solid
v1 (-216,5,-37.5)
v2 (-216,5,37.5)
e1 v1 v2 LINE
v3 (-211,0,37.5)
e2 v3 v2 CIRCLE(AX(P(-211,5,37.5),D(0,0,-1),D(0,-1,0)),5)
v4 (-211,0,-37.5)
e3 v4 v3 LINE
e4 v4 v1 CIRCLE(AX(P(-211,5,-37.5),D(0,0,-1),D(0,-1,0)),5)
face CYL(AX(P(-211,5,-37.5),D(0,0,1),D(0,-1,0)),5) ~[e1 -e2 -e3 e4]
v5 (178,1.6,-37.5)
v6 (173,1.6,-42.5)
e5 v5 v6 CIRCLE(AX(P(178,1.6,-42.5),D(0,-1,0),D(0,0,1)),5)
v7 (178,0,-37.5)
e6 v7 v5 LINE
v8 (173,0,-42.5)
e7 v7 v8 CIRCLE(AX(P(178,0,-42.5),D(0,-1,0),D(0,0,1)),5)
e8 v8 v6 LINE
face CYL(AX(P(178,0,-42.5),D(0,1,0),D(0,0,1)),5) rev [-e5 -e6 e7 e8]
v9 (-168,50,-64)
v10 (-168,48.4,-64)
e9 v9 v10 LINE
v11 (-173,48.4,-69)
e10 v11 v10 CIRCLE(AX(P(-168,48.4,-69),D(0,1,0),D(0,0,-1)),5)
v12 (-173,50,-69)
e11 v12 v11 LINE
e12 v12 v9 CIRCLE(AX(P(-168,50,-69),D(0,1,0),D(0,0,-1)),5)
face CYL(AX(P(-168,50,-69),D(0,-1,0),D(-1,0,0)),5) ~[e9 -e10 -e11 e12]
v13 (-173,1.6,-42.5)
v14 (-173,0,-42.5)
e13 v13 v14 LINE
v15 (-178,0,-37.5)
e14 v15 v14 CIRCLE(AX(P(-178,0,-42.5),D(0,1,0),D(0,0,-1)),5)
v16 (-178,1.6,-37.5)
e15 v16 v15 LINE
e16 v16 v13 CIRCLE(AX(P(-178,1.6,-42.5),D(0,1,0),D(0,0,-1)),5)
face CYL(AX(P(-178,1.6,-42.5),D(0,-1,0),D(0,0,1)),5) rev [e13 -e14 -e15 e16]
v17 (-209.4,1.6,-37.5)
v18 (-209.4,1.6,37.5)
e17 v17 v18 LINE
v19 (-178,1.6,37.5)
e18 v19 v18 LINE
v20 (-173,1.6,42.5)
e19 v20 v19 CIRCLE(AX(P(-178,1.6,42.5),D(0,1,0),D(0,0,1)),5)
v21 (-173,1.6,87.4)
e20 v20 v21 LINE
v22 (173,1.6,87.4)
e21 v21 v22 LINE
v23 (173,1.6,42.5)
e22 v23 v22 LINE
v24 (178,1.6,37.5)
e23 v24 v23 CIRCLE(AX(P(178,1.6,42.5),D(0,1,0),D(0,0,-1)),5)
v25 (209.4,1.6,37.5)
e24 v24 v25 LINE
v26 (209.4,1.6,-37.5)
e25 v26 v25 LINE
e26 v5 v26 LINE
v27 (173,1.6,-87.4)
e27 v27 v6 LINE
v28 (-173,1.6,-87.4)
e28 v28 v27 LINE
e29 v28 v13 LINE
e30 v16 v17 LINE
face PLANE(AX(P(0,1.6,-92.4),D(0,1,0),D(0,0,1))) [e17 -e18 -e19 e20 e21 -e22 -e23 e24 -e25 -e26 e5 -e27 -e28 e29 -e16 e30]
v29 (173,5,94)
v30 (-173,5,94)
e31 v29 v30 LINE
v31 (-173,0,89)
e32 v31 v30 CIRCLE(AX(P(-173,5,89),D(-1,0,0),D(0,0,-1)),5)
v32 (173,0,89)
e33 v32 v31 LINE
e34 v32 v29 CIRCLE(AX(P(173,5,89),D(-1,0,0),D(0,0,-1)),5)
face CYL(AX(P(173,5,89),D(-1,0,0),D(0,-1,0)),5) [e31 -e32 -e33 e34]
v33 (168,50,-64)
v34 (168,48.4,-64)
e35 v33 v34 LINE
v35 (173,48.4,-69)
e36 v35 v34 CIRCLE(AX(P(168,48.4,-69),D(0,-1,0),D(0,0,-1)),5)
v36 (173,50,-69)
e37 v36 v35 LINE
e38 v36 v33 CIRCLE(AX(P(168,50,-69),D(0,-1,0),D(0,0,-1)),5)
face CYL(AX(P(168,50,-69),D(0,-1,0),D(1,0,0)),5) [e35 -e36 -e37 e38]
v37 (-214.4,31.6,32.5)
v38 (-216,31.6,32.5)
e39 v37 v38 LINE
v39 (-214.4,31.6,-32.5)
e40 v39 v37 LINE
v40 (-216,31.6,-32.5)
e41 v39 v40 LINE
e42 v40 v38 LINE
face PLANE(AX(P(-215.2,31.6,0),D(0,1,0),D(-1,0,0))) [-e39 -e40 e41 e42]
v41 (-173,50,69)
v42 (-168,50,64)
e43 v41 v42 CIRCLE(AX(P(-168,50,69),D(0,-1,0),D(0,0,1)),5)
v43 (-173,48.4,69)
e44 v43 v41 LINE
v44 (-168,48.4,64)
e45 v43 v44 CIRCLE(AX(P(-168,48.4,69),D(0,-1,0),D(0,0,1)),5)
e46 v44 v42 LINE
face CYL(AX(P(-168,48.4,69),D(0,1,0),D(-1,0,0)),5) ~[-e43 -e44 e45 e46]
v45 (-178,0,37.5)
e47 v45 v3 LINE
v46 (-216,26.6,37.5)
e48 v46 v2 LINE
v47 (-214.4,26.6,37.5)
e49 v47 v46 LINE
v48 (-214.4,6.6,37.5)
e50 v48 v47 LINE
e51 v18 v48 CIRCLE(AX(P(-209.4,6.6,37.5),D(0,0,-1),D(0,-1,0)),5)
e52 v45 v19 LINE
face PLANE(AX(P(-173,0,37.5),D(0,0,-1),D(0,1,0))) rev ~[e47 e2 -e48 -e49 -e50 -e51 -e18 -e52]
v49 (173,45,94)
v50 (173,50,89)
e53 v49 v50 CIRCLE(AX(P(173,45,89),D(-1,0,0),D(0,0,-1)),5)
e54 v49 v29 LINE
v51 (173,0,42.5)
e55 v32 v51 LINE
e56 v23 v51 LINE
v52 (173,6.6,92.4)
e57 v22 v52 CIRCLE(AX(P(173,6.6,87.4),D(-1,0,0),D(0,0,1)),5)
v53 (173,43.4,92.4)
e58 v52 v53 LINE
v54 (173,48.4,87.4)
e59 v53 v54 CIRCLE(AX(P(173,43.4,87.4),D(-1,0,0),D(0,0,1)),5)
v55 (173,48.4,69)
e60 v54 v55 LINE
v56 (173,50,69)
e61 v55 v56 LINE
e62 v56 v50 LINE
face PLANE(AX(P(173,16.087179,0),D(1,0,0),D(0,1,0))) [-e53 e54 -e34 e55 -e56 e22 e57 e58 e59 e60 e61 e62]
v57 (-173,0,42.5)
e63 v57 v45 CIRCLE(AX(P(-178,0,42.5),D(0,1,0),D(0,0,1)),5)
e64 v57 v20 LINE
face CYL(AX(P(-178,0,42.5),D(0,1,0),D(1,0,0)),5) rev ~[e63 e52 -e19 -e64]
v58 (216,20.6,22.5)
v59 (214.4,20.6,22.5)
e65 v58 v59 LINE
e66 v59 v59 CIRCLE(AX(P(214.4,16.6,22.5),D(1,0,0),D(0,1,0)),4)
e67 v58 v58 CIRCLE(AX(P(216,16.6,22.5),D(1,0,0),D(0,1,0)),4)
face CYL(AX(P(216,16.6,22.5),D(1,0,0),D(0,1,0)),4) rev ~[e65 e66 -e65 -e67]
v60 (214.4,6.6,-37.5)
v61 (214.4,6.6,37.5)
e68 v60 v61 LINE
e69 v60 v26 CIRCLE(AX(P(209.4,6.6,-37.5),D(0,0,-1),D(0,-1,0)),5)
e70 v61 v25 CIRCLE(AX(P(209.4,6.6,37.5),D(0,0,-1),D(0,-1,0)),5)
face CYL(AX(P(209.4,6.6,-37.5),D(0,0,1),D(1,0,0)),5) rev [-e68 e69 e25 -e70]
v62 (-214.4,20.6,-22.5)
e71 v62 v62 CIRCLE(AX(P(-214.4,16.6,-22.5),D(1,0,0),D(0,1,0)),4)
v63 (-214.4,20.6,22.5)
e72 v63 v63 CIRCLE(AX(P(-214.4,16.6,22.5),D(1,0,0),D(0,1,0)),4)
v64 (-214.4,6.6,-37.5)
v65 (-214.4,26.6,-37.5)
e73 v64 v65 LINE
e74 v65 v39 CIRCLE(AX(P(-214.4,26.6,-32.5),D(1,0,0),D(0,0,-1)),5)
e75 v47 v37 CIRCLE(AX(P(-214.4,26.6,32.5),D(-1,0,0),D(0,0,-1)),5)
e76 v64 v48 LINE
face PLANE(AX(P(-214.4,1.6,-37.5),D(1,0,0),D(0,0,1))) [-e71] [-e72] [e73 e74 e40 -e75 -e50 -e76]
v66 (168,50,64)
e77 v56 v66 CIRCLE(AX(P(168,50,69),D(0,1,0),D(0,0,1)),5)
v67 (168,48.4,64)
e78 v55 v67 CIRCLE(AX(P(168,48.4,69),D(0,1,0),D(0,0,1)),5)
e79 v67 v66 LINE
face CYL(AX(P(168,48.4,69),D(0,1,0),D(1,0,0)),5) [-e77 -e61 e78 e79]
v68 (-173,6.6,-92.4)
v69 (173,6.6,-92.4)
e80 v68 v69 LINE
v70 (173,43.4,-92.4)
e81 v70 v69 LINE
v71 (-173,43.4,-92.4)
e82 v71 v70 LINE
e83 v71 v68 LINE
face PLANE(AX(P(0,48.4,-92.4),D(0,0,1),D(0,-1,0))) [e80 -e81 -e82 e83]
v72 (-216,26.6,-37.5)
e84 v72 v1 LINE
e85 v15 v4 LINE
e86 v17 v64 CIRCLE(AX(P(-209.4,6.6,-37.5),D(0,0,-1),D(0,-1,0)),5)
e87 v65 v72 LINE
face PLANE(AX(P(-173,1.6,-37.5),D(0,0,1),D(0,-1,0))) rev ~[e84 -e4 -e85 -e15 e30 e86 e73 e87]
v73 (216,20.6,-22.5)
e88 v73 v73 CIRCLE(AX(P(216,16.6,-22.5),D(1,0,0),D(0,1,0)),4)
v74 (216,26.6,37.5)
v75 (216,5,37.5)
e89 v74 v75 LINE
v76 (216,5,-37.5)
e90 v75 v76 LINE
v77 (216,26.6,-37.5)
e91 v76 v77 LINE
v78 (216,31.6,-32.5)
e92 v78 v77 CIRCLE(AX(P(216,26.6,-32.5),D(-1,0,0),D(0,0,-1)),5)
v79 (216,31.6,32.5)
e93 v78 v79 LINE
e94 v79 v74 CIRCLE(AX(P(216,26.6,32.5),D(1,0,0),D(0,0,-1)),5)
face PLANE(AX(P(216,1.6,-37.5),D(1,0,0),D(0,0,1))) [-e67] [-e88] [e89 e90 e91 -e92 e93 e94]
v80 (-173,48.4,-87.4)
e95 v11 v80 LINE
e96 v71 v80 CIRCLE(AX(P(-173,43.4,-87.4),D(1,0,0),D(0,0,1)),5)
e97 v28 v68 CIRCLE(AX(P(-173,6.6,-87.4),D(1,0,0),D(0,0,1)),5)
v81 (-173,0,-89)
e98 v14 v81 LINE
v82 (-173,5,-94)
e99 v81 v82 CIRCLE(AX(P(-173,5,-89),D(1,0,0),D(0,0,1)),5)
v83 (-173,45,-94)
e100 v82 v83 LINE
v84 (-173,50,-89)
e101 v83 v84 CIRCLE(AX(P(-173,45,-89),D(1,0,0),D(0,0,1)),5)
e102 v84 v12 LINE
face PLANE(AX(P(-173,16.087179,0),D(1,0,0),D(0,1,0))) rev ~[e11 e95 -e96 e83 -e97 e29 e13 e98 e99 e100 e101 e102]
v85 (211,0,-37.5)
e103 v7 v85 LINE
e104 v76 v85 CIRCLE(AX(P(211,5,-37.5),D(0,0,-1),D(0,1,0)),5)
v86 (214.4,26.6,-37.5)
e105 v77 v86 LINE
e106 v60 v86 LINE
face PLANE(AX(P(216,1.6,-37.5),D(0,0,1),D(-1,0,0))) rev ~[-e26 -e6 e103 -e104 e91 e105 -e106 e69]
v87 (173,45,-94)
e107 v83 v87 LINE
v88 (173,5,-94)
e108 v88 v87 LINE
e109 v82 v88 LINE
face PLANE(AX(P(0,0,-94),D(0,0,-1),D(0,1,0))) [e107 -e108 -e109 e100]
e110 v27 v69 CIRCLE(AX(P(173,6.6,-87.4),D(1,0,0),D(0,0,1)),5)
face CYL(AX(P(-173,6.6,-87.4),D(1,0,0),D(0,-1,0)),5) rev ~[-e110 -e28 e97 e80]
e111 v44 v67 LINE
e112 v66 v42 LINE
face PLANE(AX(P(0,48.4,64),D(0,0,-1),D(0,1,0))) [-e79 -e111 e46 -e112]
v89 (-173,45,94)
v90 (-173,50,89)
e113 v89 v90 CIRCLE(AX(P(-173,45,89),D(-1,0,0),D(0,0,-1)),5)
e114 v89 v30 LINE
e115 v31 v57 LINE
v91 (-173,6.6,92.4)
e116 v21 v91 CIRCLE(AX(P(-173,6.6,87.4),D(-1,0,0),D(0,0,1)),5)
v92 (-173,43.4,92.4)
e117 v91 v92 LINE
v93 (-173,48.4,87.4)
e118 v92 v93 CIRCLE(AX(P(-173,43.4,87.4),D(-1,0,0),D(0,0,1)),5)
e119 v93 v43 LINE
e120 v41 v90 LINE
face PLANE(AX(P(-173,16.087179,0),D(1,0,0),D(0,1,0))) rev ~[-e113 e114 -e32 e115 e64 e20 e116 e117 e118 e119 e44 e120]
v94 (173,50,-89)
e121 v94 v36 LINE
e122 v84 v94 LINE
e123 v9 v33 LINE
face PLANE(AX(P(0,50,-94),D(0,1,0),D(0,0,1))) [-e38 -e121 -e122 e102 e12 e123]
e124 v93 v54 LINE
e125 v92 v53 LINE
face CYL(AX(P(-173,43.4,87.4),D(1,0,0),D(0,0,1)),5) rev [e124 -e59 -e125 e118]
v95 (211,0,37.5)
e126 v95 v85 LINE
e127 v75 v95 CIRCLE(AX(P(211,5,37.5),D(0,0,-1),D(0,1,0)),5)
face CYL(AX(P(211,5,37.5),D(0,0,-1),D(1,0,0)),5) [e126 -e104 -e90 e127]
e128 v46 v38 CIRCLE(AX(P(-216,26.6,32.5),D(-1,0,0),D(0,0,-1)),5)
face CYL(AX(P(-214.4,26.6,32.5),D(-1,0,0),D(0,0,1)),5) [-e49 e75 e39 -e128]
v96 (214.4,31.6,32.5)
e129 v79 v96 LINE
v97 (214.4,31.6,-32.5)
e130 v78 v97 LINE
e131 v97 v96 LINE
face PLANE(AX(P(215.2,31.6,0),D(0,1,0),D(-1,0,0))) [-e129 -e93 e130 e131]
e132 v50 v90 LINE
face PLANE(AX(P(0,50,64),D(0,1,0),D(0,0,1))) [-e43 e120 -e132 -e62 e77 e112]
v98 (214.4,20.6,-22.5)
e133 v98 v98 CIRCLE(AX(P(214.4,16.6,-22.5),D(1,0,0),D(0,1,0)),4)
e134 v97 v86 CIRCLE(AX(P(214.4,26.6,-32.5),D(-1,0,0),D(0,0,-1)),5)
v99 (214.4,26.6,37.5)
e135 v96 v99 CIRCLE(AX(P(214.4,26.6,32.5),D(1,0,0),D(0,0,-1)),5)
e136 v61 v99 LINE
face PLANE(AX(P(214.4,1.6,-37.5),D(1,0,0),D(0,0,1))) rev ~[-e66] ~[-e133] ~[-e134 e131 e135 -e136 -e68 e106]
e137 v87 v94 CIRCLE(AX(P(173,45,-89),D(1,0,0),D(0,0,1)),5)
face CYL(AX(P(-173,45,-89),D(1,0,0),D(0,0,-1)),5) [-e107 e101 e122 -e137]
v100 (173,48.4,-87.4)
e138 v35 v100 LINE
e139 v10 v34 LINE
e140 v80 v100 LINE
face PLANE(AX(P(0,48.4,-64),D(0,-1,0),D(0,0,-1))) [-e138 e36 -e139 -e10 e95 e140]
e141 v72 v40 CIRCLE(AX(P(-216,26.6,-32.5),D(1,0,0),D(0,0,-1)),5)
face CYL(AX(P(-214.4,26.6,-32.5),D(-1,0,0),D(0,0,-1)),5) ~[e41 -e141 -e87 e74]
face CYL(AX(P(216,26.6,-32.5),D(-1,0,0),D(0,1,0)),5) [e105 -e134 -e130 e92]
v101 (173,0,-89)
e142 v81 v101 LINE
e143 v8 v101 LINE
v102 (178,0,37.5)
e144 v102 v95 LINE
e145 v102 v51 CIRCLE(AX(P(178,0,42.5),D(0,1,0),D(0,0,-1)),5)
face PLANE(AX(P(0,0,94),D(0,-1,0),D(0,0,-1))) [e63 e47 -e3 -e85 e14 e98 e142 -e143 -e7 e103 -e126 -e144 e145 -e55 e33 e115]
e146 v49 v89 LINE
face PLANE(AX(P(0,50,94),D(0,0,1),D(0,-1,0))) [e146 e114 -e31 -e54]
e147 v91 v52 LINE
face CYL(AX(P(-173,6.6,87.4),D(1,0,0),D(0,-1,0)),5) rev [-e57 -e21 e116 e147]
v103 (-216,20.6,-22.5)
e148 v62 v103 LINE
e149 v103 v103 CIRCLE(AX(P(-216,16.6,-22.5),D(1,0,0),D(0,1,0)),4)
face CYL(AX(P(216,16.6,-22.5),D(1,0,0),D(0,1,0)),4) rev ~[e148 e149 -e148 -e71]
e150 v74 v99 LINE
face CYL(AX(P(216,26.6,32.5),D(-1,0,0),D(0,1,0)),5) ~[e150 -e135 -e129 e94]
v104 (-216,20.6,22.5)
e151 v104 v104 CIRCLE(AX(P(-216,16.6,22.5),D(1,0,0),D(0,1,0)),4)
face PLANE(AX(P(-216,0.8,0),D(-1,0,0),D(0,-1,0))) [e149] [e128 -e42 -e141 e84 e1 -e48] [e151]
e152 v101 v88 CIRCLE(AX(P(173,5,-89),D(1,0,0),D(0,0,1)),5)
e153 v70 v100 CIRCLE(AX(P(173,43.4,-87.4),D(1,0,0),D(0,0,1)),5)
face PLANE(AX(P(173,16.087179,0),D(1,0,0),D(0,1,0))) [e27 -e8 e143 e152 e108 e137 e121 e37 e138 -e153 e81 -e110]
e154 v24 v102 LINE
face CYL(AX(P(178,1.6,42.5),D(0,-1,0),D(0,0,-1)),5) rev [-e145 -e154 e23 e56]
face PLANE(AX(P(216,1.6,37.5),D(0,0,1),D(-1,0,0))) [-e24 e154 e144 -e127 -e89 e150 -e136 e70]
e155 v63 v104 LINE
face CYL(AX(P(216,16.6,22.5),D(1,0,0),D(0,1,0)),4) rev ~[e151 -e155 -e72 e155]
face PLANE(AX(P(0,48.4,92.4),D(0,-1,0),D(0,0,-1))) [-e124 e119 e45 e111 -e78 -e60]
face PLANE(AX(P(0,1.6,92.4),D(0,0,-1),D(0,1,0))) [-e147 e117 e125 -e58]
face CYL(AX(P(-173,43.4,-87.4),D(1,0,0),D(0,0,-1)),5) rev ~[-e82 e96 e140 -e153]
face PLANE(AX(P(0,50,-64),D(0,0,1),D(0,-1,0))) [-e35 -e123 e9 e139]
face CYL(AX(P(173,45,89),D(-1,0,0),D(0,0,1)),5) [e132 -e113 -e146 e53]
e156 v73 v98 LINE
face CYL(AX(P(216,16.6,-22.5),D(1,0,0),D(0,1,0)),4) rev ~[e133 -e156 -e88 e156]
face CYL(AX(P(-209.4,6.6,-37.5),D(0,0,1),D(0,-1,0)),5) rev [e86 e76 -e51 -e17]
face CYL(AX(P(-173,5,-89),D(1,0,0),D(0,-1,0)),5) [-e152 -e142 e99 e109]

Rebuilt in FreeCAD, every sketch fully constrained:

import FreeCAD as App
import Part
import Sketcher
from FreeCAD import Vector
Q = App.Units.Quantity


def edges_at(feature, points):
    """Names of the edges that pass closest to the given points."""
    edges = feature.Shape.Edges
    near = lambda p: min(range(len(edges)), key=lambda i: edges[i].distToShape(Part.Vertex(*p))[0])
    return sorted({f"Edge{near(p) + 1}" for p in points})

doc = App.newDocument("Part")
body = doc.addObject("PartDesign::Body", "Body")

# Sketch on YZ plane
sketch1 = body.newObject("Sketcher::SketchObject", "Sketch")
sketch1.AttachmentSupport = (doc.getObject("YZ_Plane"), [""])
sketch1.MapMode = "FlatFace"
sketch1.addGeometry([
    Part.LineSegment(Vector(0, 94, 0), Vector(0, -94, 0)),  # 0
    Part.LineSegment(Vector(0, -94, 0), Vector(50, -94, 0)),  # 1
    Part.LineSegment(Vector(50, -94, 0), Vector(50, -64, 0)),  # 2
    Part.LineSegment(Vector(50, -64, 0), Vector(48.4, -64, 0)),  # 3
    Part.LineSegment(Vector(48.4, -64, 0), Vector(48.4, -92.4, 0)),  # 4
    Part.LineSegment(Vector(48.4, -92.4, 0), Vector(1.6, -92.4, 0)),  # 5
    Part.LineSegment(Vector(1.6, -92.4, 0), Vector(1.6, 92.4, 0)),  # 6
    Part.LineSegment(Vector(1.6, 92.4, 0), Vector(48.4, 92.4, 0)),  # 7
    Part.LineSegment(Vector(48.4, 92.4, 0), Vector(48.4, 64, 0)),  # 8
    Part.LineSegment(Vector(48.4, 64, 0), Vector(50, 64, 0)),  # 9
    Part.LineSegment(Vector(50, 64, 0), Vector(50, 94, 0)),  # 10
    Part.LineSegment(Vector(50, 94, 0), Vector(0, 94, 0)),  # 11
], False)
sketch1.addConstraint([
    Sketcher.Constraint("Coincident", 0, 2, 1, 1),
    Sketcher.Constraint("Coincident", 1, 2, 2, 1),
    Sketcher.Constraint("Coincident", 2, 2, 3, 1),
    Sketcher.Constraint("Coincident", 3, 2, 4, 1),
    Sketcher.Constraint("Coincident", 4, 2, 5, 1),
    Sketcher.Constraint("Coincident", 5, 2, 6, 1),
    Sketcher.Constraint("Coincident", 6, 2, 7, 1),
    Sketcher.Constraint("Coincident", 7, 2, 8, 1),
    Sketcher.Constraint("Coincident", 8, 2, 9, 1),
    Sketcher.Constraint("Coincident", 9, 2, 10, 1),
    Sketcher.Constraint("Coincident", 10, 2, 11, 1),
    Sketcher.Constraint("Coincident", 11, 2, 0, 1),
    Sketcher.Constraint("Vertical", 0),
    Sketcher.Constraint("Horizontal", 1),
    Sketcher.Constraint("Vertical", 2),
    Sketcher.Constraint("Horizontal", 3),
    Sketcher.Constraint("Vertical", 4),
    Sketcher.Constraint("Horizontal", 5),
    Sketcher.Constraint("Vertical", 6),
    Sketcher.Constraint("Horizontal", 7),
    Sketcher.Constraint("Vertical", 8),
    Sketcher.Constraint("Horizontal", 9),
    Sketcher.Constraint("Vertical", 10),
    Sketcher.Constraint("Horizontal", 11),
    Sketcher.Constraint("Symmetric", 0, 2, 11, 2, -1, 1),
    Sketcher.Constraint("Symmetric", 4, 2, 7, 2, -1),
    Sketcher.Constraint("Symmetric", 2, 2, 9, 2, -1),
    Sketcher.Constraint("DistanceX", 1, 1, 1, 2, Q("50 mm")),
    Sketcher.Constraint("DistanceY", 0, 2, 0, 1, Q("188 mm")),
    Sketcher.Constraint("DistanceY", 2, 1, 2, 2, Q("30 mm")),
    Sketcher.Constraint("DistanceX", 3, 2, 3, 1, Q("1.6 mm")),
    Sketcher.Constraint("DistanceX", 5, 2, 5, 1, Q("46.8 mm")),
    Sketcher.Constraint("DistanceY", 4, 2, 4, 1, Q("28.4 mm")),
])
pad1 = body.newObject("PartDesign::Pad", "Pad")
pad1.Profile = sketch1
pad1.Length = 346
pad1.Midplane = True

# Sketch on YZ plane
sketch2 = body.newObject("Sketcher::SketchObject", "Sketch001")
sketch2.AttachmentSupport = (doc.getObject("YZ_Plane"), [""])
sketch2.MapMode = "FlatFace"
sketch2.AttachmentOffset = App.Placement(Vector(0, 0, 173), App.Rotation())
sketch2.addGeometry([
    Part.LineSegment(Vector(0, 37.5, 0), Vector(0, -37.5, 0)),
    Part.LineSegment(Vector(0, -37.5, 0), Vector(1.6, -37.5, 0)),
    Part.LineSegment(Vector(1.6, -37.5, 0), Vector(1.6, 37.5, 0)),
    Part.LineSegment(Vector(1.6, 37.5, 0), Vector(0, 37.5, 0)),
], False)
sketch2.addConstraint([
    Sketcher.Constraint("Coincident", 0, 2, 1, 1),
    Sketcher.Constraint("Coincident", 1, 2, 2, 1),
    Sketcher.Constraint("Coincident", 2, 2, 3, 1),
    Sketcher.Constraint("Coincident", 3, 2, 0, 1),
    Sketcher.Constraint("Vertical", 0),
    Sketcher.Constraint("Horizontal", 1),
    Sketcher.Constraint("Vertical", 2),
    Sketcher.Constraint("Horizontal", 3),
    Sketcher.Constraint("Symmetric", 0, 2, 3, 2, -1, 1),
    Sketcher.Constraint("DistanceY", 0, 2, 0, 1, Q("75 mm")),
    Sketcher.Constraint("DistanceX", 1, 1, 1, 2, Q("1.6 mm")),
])
pad2 = body.newObject("PartDesign::Pad", "Pad001")
pad2.Profile = sketch2
pad2.Length = 43

# Sketch on YZ plane
sketch3 = body.newObject("Sketcher::SketchObject", "Sketch002")
sketch3.AttachmentSupport = (doc.getObject("YZ_Plane"), [""])
sketch3.MapMode = "FlatFace"
sketch3.AttachmentOffset = App.Placement(Vector(0, 0, -173), App.Rotation())
sketch3.addGeometry([
    Part.LineSegment(Vector(0, -37.5, 0), Vector(0, 37.5, 0)),
    Part.LineSegment(Vector(0, 37.5, 0), Vector(1.6, 37.5, 0)),
    Part.LineSegment(Vector(1.6, 37.5, 0), Vector(1.6, -37.5, 0)),
    Part.LineSegment(Vector(1.6, -37.5, 0), Vector(0, -37.5, 0)),
], False)
sketch3.addConstraint([
    Sketcher.Constraint("Coincident", 0, 2, 1, 1),
    Sketcher.Constraint("Coincident", 1, 2, 2, 1),
    Sketcher.Constraint("Coincident", 2, 2, 3, 1),
    Sketcher.Constraint("Coincident", 3, 2, 0, 1),
    Sketcher.Constraint("Vertical", 0),
    Sketcher.Constraint("Horizontal", 1),
    Sketcher.Constraint("Vertical", 2),
    Sketcher.Constraint("Horizontal", 3),
    Sketcher.Constraint("Symmetric", 0, 2, 3, 2, -1, 1),
    Sketcher.Constraint("DistanceY", 0, 1, 0, 2, Q("75 mm")),
    Sketcher.Constraint("DistanceX", 1, 1, 1, 2, Q("1.6 mm")),
])
pad3 = body.newObject("PartDesign::Pad", "Pad002")
pad3.Profile = sketch3
pad3.Length = 43
pad3.Reversed = True

# Sketch on XZ plane
sketch4 = body.newObject("Sketcher::SketchObject", "Sketch003")
sketch4.AttachmentSupport = (doc.getObject("XZ_Plane"), [""])
sketch4.MapMode = "FlatFace"
sketch4.AttachmentOffset = App.Placement(Vector(0, 0, -1.6), App.Rotation())
sketch4.addGeometry([
    Part.LineSegment(Vector(216, 37.5, 0), Vector(216, -37.5, 0)),  # 0
    Part.LineSegment(Vector(216, -37.5, 0), Vector(214.4, -37.5, 0)),  # 1
    Part.LineSegment(Vector(214.4, -37.5, 0), Vector(214.4, 37.5, 0)),  # 2
    Part.LineSegment(Vector(214.4, 37.5, 0), Vector(216, 37.5, 0)),  # 3
    Part.LineSegment(Vector(-214.4, 37.5, 0), Vector(-214.4, -37.5, 0)),  # 4
    Part.LineSegment(Vector(-214.4, -37.5, 0), Vector(-216, -37.5, 0)),  # 5
    Part.LineSegment(Vector(-216, -37.5, 0), Vector(-216, 37.5, 0)),  # 6
    Part.LineSegment(Vector(-216, 37.5, 0), Vector(-214.4, 37.5, 0)),  # 7
], False)
sketch4.addConstraint([
    Sketcher.Constraint("Coincident", 0, 2, 1, 1),
    Sketcher.Constraint("Coincident", 1, 2, 2, 1),
    Sketcher.Constraint("Coincident", 2, 2, 3, 1),
    Sketcher.Constraint("Coincident", 3, 2, 0, 1),
    Sketcher.Constraint("Coincident", 4, 2, 5, 1),
    Sketcher.Constraint("Coincident", 5, 2, 6, 1),
    Sketcher.Constraint("Coincident", 6, 2, 7, 1),
    Sketcher.Constraint("Coincident", 7, 2, 4, 1),
    Sketcher.Constraint("Vertical", 0),
    Sketcher.Constraint("Horizontal", 1),
    Sketcher.Constraint("Vertical", 2),
    Sketcher.Constraint("Horizontal", 3),
    Sketcher.Constraint("Vertical", 4),
    Sketcher.Constraint("Horizontal", 5),
    Sketcher.Constraint("Vertical", 6),
    Sketcher.Constraint("Horizontal", 7),
    Sketcher.Constraint("Symmetric", 2, 2, 4, 2, -1, 1),
    Sketcher.Constraint("Symmetric", 0, 2, 6, 2, -1, 1),
    Sketcher.Constraint("Horizontal", 1, 2, 4, 2),
    Sketcher.Constraint("DistanceY", 0, 2, 0, 1, Q("75 mm")),
    Sketcher.Constraint("DistanceX", 1, 2, 1, 1, Q("1.6 mm")),
    Sketcher.Constraint("DistanceX", -1, 1, 0, 2, Q("216 mm")),
])
pad4 = body.newObject("PartDesign::Pad", "Pad003")
pad4.Profile = sketch4
pad4.Length = 30
pad4.Reversed = True

# Sketch on YZ plane
sketch5 = body.newObject("Sketcher::SketchObject", "Sketch004")
sketch5.AttachmentSupport = (doc.getObject("YZ_Plane"), [""])
sketch5.MapMode = "FlatFace"
sketch5.AttachmentOffset = App.Placement(Vector(0, 0, 216), App.Rotation())
sketch5.addGeometry([
    Part.Circle(Vector(16.6, 22.5, 0), Vector(0, 0, 1), 4),
    Part.Circle(Vector(16.6, -22.5, 0), Vector(0, 0, 1), 4),
], False)
sketch5.addConstraint([
    Sketcher.Constraint("Equal", 0, 1),
    Sketcher.Constraint("Symmetric", 0, 3, 1, 3, -1),
    Sketcher.Constraint("Diameter", 0, Q("8 mm")),
    Sketcher.Constraint("DistanceY", 1, 3, 0, 3, Q("45 mm")),
    Sketcher.Constraint("DistanceX", -1, 1, 0, 3, Q("16.6 mm")),
])
pocket1 = body.newObject("PartDesign::Pocket", "Pocket")
pocket1.Profile = sketch5
pocket1.Type = "ThroughAll"
doc.recompute()

fillet = body.newObject("PartDesign::Fillet", "Fillet")
fillet.Base = (pocket1, edges_at(pocket1, [
    (173, 0.8, 37.5),
    (215.2, 31.6, -37.5),
    (173, 0.8, -37.5),
    (173, 49.2, 64),
    (173, 49.2, -64),
    (215.2, 31.6, 37.5),
    (-173, 49.2, -64),
    (-173, 0.8, -37.5),
    (-215.2, 31.6, -37.5),
    (-215.2, 31.6, 37.5),
    (-173, 0.8, 37.5),
    (-173, 49.2, 64),
    (0, 50, -94),
    (0, 0, -94),
    (-216, 0, 0),
    (0, 1.6, -92.4),
    (0, 48.4, -92.4),
    (-214.4, 1.6, 0),
    (214.4, 1.6, 0),
    (216, 0, 0),
    (0, 0, 94),
    (0, 50, 94),
    (0, 48.4, 92.4),
    (0, 1.6, 92.4),
]))
fillet.Radius = 5

doc.recompute()
